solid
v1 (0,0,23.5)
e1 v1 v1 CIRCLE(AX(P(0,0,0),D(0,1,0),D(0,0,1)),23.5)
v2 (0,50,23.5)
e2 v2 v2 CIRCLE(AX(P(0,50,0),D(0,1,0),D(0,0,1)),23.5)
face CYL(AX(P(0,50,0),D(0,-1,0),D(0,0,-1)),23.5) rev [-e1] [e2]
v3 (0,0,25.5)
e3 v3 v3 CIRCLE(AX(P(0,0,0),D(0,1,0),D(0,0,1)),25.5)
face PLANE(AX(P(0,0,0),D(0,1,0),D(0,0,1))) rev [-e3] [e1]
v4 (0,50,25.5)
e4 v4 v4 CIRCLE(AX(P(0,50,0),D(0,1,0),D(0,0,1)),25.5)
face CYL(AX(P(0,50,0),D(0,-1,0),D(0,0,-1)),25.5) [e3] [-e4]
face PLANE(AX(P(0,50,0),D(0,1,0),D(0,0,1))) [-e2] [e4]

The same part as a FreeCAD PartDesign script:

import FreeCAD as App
import Part
import Sketcher

V = App.Vector

doc = App.newDocument("Part")
body = doc.addObject("PartDesign::Body", "Body")

sketch1 = body.newObject("Sketcher::SketchObject", "Sketch")
sketch1.AttachmentSupport = (doc.getObject("XZ_Plane"), [""])
sketch1.MapMode = "FlatFace"
sketch1.addGeometry([
    Part.Circle(V(0, 0, 0), V(0, 0, 1), 26),
    Part.Circle(V(0, 0, 0), V(0, 0, 1), 24),
], False)
sketch1.addConstraint([
    Sketcher.Constraint("Coincident", 0, 3, -1, 1),
    Sketcher.Constraint("Coincident", 1, 3, -1, 1),
    Sketcher.Constraint("Diameter", 0, 51.0),
    Sketcher.Constraint("Diameter", 1, 47.0),
])
pad1 = body.newObject("PartDesign::Pad", "Pad")
pad1.Profile = sketch1
pad1.Length = 50
pad1.Reversed = True

doc.recompute()
